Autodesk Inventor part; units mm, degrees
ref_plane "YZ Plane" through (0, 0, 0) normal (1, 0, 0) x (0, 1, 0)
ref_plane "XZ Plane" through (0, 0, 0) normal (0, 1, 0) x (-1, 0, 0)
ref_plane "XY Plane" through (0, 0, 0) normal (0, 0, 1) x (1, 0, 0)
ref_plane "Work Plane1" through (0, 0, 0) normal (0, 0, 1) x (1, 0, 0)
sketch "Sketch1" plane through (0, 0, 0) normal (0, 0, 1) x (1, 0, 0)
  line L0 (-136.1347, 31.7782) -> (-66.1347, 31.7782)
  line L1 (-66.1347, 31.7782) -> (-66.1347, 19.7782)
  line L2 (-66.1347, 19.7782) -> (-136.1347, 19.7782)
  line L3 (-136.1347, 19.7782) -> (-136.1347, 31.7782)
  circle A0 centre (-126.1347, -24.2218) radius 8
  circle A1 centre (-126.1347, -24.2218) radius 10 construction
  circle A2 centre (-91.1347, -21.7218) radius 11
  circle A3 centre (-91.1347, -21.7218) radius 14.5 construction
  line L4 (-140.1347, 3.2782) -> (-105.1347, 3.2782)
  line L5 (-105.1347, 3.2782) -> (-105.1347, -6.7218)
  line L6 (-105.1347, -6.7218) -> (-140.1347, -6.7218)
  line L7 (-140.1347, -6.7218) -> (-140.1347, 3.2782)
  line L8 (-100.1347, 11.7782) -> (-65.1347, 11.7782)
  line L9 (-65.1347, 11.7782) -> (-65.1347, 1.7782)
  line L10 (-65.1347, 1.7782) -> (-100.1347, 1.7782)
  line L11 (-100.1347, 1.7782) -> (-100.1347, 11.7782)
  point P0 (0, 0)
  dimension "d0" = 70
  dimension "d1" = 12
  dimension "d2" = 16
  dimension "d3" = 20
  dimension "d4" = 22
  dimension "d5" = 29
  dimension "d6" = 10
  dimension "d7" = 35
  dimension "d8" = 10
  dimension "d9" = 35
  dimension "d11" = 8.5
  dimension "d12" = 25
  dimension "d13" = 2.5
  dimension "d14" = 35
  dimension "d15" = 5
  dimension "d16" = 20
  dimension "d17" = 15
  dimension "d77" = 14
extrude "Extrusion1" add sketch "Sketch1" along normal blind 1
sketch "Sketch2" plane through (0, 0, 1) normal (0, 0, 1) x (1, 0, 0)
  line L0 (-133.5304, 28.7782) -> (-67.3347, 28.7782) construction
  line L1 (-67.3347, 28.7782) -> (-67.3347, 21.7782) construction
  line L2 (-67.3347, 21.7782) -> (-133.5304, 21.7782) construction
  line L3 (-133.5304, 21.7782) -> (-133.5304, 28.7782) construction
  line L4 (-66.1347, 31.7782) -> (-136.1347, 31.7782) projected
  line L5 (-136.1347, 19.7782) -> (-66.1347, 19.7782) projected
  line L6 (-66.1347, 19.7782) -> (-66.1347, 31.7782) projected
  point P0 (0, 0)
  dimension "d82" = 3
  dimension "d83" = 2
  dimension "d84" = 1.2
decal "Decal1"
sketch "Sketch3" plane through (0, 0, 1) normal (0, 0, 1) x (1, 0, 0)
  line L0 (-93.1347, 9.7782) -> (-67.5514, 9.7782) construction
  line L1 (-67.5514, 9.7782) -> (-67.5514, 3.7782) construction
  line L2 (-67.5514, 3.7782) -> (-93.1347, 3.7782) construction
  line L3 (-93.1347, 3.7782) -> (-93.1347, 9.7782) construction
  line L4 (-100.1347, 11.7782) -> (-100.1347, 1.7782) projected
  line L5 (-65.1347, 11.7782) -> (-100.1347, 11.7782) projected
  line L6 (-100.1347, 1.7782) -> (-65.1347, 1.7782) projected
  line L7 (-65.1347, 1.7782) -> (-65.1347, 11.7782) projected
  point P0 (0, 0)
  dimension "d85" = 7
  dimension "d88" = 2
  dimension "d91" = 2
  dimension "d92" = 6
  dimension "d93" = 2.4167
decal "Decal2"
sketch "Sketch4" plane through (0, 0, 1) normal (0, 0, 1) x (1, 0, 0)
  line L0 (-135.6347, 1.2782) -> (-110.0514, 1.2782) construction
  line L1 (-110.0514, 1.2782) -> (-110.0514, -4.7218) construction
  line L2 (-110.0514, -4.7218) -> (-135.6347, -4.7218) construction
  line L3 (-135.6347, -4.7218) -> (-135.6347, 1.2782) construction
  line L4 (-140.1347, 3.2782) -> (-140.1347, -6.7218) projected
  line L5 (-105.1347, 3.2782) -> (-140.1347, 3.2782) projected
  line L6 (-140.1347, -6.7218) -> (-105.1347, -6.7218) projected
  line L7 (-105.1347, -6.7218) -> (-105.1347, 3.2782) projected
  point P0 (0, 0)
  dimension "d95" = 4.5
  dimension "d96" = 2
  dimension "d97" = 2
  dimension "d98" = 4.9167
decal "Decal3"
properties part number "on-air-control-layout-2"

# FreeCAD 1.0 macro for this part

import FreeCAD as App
import Part
import Sketcher

V = App.Vector

doc = App.newDocument("Part")
body = doc.addObject("PartDesign::Body", "Body")
body.AllowCompound = True

# Sketch on XY plane
sketch1 = body.newObject("Sketcher::SketchObject", "Sketch")
sketch1.AttachmentSupport = (doc.getObject("XY_Plane"), [""])
sketch1.MapMode = "FlatFace"
sketch1.addGeometry([
    Part.LineSegment(V(-66, 32, 0), V(-136, 32, 0)),  # 0
    Part.LineSegment(V(-136, 32, 0), V(-136, 20, 0)),  # 1
    Part.LineSegment(V(-136, 20, 0), V(-66, 20, 0)),  # 2
    Part.LineSegment(V(-66, 20, 0), V(-66, 32, 0)),  # 3
    Part.Circle(V(-126, -24, 0), V(0, 0, 1), 8),  # 4
    Part.Circle(V(-91, -22, 0), V(0, 0, 1), 11),  # 5
    Part.LineSegment(V(-105, 3, 0), V(-140, 3, 0)),  # 6
    Part.LineSegment(V(-140, 3, 0), V(-140, -7, 0)),  # 7
    Part.LineSegment(V(-140, -7, 0), V(-105, -7, 0)),  # 8
    Part.LineSegment(V(-105, -7, 0), V(-105, 3, 0)),  # 9
    Part.LineSegment(V(-65, 12, 0), V(-100, 12, 0)),  # 10
    Part.LineSegment(V(-100, 12, 0), V(-100, 2, 0)),  # 11
    Part.LineSegment(V(-100, 2, 0), V(-65, 2, 0)),  # 12
    Part.LineSegment(V(-65, 2, 0), V(-65, 12, 0)),  # 13
], False)
sketch1.addConstraint([
    Sketcher.Constraint("Coincident", 0, 2, 1, 1),
    Sketcher.Constraint("Coincident", 1, 2, 2, 1),
    Sketcher.Constraint("Coincident", 2, 2, 3, 1),
    Sketcher.Constraint("Coincident", 3, 2, 0, 1),
    Sketcher.Constraint("Coincident", 6, 2, 7, 1),
    Sketcher.Constraint("Coincident", 7, 2, 8, 1),
    Sketcher.Constraint("Coincident", 8, 2, 9, 1),
    Sketcher.Constraint("Coincident", 9, 2, 6, 1),
    Sketcher.Constraint("Coincident", 10, 2, 11, 1),
    Sketcher.Constraint("Coincident", 11, 2, 12, 1),
    Sketcher.Constraint("Coincident", 12, 2, 13, 1),
    Sketcher.Constraint("Coincident", 13, 2, 10, 1),
    Sketcher.Constraint("Horizontal", 0),
    Sketcher.Constraint("Vertical", 1),
    Sketcher.Constraint("Horizontal", 2),
    Sketcher.Constraint("Vertical", 3),
    Sketcher.Constraint("Horizontal", 6),
    Sketcher.Constraint("Vertical", 7),
    Sketcher.Constraint("Horizontal", 8),
    Sketcher.Constraint("Vertical", 9),
    Sketcher.Constraint("Horizontal", 10),
    Sketcher.Constraint("Vertical", 11),
    Sketcher.Constraint("Horizontal", 12),
    Sketcher.Constraint("Vertical", 13),
    Sketcher.Constraint("Equal", 8, 10),
    Sketcher.Constraint("Equal", 9, 11),
    Sketcher.Constraint("Diameter", 4, 16.0),
    Sketcher.Constraint("Diameter", 5, 22.0),
    Sketcher.Constraint("DistanceX", 0, 2, 0, 1, 70.0),
    Sketcher.Constraint("DistanceX", 6, 2, 6, 1, 35.0),
    Sketcher.Constraint("DistanceY", 1, 2, 1, 1, 12.0),
    Sketcher.Constraint("DistanceY", 7, 2, 7, 1, 10.0),
    Sketcher.Constraint("DistanceX", 4, 3, 5, 3, 35.0),
    Sketcher.Constraint("DistanceX", 0, 2, 4, 3, 10.0),
    Sketcher.Constraint("DistanceX", 6, 2, 4, 3, 14.0),
    Sketcher.Constraint("DistanceY", 5, 3, 6, 2, 25.0),
    Sketcher.Constraint("DistanceX", 9, 2, 10, 2, 5.0),
    Sketcher.Constraint("DistanceY", 13, 2, 3, 2, 20.0),
    Sketcher.Constraint("DistanceY", 4, 3, 5, 3, 2.5),
    Sketcher.Constraint("DistanceY", 9, 2, 10, 2, 8.5),
    Sketcher.Constraint("DistanceX", 4, 3, -1, 1, 126.1347),
    Sketcher.Constraint("DistanceY", 4, 3, -1, 1, 24.2218),
])
pad1 = body.newObject("PartDesign::Pad", "Pad")
pad1.Profile = sketch1
pad1.Length = 1

doc.recompute()
